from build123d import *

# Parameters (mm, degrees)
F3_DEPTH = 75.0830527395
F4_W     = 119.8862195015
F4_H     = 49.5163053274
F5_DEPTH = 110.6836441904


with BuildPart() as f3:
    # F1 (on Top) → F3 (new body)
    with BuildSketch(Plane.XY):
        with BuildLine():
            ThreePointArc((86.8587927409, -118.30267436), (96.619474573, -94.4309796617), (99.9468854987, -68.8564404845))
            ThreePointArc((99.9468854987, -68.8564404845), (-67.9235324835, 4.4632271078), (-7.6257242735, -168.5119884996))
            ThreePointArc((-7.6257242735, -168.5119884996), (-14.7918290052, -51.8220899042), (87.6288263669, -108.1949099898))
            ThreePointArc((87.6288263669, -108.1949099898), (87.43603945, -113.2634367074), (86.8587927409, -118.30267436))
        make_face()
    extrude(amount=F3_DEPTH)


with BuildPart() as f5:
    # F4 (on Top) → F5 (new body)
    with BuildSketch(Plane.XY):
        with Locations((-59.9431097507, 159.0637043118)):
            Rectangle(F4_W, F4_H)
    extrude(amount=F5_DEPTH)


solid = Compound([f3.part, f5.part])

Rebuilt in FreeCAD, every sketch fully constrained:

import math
import FreeCAD as App
import Part
import Sketcher
Q = App.Units.Quantity

doc = App.newDocument("Part")
body = doc.addObject("PartDesign::Body", "Body")

# Sketch on XY plane
sketch1 = body.newObject("Sketcher::SketchObject", "Sketch")
sketch1.AttachmentSupport = (doc.getObject("XY_Plane"), [""])
sketch1.MapMode = "FlatFace"
sketch1.addGeometry(Part.ArcOfCircle(Part.Circle(App.Vector(0, -68.85644, 0), App.Vector(0, 0, 1), 99.946885), math.radians(-29.651625), math.radians(265.624207)), False)
sketch1.addGeometry(Part.ArcOfCircle(Part.Circle(App.Vector(20.904563, -108.19491, 0), App.Vector(0, 0, 1), 66.724263), math.radians(0), math.radians(244.685611)), False)
sketch1.addGeometry(Part.ArcOfCircle(Part.Circle(App.Vector(20.904563, -108.19491, 0), App.Vector(0, 0, 1), 66.724263), math.radians(-8.713029), math.radians(0)), False)
sketch1.addConstraint(Sketcher.Constraint("Coincident", 0, 2, 1, 2))
sketch1.addConstraint(Sketcher.Constraint("Tangent", 1, 1, 2, 2))
sketch1.addConstraint(Sketcher.Constraint("Coincident", 2, 1, 0, 1))
sketch1.addConstraint(Sketcher.Constraint("Equal", 1, 2))
sketch1.addConstraint(Sketcher.Constraint("PointOnObject", 0, 3, -2))
sketch1.addConstraint(Sketcher.Constraint("Horizontal", 2, 3, 1, 1))
sketch1.addConstraint(Sketcher.Constraint("Radius", 0, Q("99.946885 mm")))
sketch1.addConstraint(Sketcher.Constraint("Radius", 1, Q("66.724263 mm")))
sketch1.addConstraint(Sketcher.Constraint("DistanceY", 0, 3, -1, 1, Q("68.85644 mm")))
sketch1.addConstraint(Sketcher.Constraint("DistanceY", 1, 3, -1, 1, Q("108.19491 mm")))
sketch1.addConstraint(Sketcher.Constraint("DistanceY", 0, 2, -1, 1, Q("168.511988 mm")))
pad1 = body.newObject("PartDesign::Pad", "Pad")
pad1.Profile = sketch1
pad1.Length = 75.083053
body2 = doc.addObject("PartDesign::Body", "Body001")

# Sketch on XY plane
sketch2 = body2.newObject("Sketcher::SketchObject", "Sketch001")
sketch2.AttachmentSupport = (doc.getObject("XY_Plane001"), [""])
sketch2.MapMode = "FlatFace"
sketch2.addGeometry(Part.LineSegment(App.Vector(-119.88622, 183.821857, 0), App.Vector(-119.88622, 134.305552, 0)), False)
sketch2.addGeometry(Part.LineSegment(App.Vector(-119.88622, 134.305552, 0), App.Vector(0, 134.305552, 0)), False)
sketch2.addGeometry(Part.LineSegment(App.Vector(0, 134.305552, 0), App.Vector(0, 183.821857, 0)), False)
sketch2.addGeometry(Part.LineSegment(App.Vector(0, 183.821857, 0), App.Vector(-119.88622, 183.821857, 0)), False)
sketch2.addConstraint(Sketcher.Constraint("Coincident", 0, 2, 1, 1))
sketch2.addConstraint(Sketcher.Constraint("Coincident", 1, 2, 2, 1))
sketch2.addConstraint(Sketcher.Constraint("Coincident", 2, 2, 3, 1))
sketch2.addConstraint(Sketcher.Constraint("Coincident", 3, 2, 0, 1))
sketch2.addConstraint(Sketcher.Constraint("Vertical", 0))
sketch2.addConstraint(Sketcher.Constraint("Horizontal", 1))
sketch2.addConstraint(Sketcher.Constraint("Vertical", 2))
sketch2.addConstraint(Sketcher.Constraint("Horizontal", 3))
sketch2.addConstraint(Sketcher.Constraint("PointOnObject", 1, 2, -2))
sketch2.addConstraint(Sketcher.Constraint("DistanceX", 1, 1, 1, 2, Q("119.88622 mm")))
sketch2.addConstraint(Sketcher.Constraint("DistanceY", 0, 2, 0, 1, Q("49.516305 mm")))
sketch2.addConstraint(Sketcher.Constraint("DistanceY", -1, 1, 0, 2, Q("134.305552 mm")))
pad2 = body2.newObject("PartDesign::Pad", "Pad001")
pad2.Profile = sketch2
pad2.Length = 110.683644

doc.recompute()
